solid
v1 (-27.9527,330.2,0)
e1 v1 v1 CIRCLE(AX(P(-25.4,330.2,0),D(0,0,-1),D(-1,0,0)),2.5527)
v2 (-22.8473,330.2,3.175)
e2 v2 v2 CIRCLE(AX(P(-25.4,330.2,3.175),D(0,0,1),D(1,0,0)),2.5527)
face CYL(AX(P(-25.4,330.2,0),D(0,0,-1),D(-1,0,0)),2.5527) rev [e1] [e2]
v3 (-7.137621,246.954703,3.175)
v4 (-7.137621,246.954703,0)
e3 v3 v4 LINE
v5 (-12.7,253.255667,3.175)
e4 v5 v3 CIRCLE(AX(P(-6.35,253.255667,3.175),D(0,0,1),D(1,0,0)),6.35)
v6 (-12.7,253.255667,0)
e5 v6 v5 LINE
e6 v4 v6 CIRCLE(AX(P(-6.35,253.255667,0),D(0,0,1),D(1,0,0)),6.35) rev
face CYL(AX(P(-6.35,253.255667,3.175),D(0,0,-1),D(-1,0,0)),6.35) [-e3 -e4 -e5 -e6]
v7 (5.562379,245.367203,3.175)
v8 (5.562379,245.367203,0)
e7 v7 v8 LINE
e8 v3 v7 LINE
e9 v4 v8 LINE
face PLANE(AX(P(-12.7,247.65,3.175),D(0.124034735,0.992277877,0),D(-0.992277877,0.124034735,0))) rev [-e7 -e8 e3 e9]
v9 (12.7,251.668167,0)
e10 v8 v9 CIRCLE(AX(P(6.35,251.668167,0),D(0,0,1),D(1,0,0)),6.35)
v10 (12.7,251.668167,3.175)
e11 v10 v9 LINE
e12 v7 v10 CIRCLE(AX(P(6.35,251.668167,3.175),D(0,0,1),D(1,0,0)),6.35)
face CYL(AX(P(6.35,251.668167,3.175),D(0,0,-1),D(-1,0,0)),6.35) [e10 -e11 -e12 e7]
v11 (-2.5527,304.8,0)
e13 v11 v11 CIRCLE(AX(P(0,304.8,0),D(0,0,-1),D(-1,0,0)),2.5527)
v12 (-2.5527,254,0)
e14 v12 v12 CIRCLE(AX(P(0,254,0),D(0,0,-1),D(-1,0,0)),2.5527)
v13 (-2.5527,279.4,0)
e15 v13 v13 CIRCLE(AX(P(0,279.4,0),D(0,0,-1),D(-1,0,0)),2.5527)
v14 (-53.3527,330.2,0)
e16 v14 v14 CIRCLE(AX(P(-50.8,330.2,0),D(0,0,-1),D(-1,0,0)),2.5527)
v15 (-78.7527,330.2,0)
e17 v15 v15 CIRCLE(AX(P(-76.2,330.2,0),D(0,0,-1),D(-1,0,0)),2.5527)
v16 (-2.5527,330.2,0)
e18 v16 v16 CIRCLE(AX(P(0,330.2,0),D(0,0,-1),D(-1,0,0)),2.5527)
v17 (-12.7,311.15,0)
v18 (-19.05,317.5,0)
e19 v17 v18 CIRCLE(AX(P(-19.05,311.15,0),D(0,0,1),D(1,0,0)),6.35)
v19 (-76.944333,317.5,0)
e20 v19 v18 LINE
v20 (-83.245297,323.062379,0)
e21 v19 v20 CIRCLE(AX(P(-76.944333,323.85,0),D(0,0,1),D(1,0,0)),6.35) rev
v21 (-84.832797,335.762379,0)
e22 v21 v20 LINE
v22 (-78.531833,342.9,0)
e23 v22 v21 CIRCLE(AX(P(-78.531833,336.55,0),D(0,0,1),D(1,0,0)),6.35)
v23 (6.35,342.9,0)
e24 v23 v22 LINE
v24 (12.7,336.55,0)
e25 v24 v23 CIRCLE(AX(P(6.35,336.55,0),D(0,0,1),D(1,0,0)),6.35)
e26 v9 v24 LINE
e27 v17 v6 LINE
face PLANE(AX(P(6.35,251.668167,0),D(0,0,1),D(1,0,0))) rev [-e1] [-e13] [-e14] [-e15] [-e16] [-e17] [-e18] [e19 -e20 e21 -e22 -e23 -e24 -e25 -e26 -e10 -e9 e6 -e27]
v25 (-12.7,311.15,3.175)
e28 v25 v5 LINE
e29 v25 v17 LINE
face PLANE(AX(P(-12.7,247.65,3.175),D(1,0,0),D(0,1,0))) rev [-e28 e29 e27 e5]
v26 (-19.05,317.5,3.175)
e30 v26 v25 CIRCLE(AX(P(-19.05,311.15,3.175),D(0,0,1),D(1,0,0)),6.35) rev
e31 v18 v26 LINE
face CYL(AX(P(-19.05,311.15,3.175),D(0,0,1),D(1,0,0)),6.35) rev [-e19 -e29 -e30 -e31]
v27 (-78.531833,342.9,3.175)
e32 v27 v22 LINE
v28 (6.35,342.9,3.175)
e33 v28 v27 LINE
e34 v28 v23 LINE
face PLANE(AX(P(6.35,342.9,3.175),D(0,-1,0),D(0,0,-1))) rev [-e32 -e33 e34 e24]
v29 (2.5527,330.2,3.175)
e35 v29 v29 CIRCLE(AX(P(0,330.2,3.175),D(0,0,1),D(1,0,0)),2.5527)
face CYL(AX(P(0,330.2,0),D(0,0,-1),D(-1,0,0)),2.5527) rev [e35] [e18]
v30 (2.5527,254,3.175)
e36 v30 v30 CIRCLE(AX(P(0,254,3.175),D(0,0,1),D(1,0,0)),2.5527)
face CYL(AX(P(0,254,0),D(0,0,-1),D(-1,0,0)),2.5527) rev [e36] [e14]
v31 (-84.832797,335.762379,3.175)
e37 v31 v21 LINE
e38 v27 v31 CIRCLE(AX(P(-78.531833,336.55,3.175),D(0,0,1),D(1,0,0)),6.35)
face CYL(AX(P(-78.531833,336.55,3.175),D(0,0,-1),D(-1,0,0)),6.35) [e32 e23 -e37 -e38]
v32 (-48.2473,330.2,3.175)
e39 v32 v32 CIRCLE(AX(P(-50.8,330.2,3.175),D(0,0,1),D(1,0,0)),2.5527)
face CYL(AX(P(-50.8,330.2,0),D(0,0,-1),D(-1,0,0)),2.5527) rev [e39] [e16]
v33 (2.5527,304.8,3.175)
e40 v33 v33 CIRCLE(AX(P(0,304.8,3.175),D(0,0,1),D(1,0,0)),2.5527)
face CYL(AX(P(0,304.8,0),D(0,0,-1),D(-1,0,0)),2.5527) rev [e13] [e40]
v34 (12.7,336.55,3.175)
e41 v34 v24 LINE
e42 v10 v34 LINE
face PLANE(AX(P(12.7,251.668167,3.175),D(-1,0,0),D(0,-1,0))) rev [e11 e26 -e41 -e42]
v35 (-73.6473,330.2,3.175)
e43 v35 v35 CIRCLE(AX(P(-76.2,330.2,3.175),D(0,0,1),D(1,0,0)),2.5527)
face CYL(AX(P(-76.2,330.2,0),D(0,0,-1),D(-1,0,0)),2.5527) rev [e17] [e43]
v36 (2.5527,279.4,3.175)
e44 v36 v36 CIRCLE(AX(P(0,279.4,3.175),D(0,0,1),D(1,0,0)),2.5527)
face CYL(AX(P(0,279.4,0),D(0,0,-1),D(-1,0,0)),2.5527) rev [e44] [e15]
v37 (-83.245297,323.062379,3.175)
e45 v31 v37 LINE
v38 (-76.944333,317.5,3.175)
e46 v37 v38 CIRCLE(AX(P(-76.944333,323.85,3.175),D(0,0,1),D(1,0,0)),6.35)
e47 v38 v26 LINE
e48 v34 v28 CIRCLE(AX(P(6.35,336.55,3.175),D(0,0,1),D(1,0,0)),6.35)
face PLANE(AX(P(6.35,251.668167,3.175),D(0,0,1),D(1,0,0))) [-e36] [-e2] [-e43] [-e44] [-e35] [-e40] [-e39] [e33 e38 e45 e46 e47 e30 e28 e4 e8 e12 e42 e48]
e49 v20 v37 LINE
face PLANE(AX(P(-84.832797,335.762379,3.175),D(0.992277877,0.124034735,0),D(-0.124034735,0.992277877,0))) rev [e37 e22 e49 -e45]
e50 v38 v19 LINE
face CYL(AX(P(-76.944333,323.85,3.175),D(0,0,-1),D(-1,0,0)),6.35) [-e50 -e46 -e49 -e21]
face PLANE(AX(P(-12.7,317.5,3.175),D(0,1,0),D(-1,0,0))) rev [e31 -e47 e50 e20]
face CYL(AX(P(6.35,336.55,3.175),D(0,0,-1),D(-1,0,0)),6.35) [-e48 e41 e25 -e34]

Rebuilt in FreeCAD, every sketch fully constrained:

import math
import FreeCAD as App
import Part
import Sketcher
Q = App.Units.Quantity


def edges_at(feature, points):
    """Names of the edges that pass closest to the given points."""
    edges = feature.Shape.Edges
    near = lambda p: min(range(len(edges)), key=lambda i: edges[i].distToShape(Part.Vertex(*p))[0])
    return sorted({f"Edge{near(p) + 1}" for p in points})

doc = App.newDocument("Part")
body = doc.addObject("PartDesign::Body", "Body")

sketch1 = body.newObject("Sketcher::SketchObject", "Sketch")
sketch1.AttachmentSupport = (doc.getObject("XY_Plane"), [""])
sketch1.MapMode = "FlatFace"
sketch1.addGeometry([
    Part.LineSegment(App.Vector(-12.7, 317.5, 0), App.Vector(-12.7, 247.65, 0)),
    Part.LineSegment(App.Vector(-12.7, 247.65, 0), App.Vector(5.562379, 245.367203, 0)),
    Part.ArcOfCircle(Part.Circle(App.Vector(6.35, 251.668167, 0), App.Vector(0, 0, 1), 6.35), math.radians(-97.125016), math.radians(0)),
    Part.LineSegment(App.Vector(12.7, 251.668167, 0), App.Vector(12.7, 336.55, 0)),
    Part.ArcOfCircle(Part.Circle(App.Vector(6.35, 336.55, 0), App.Vector(0, 0, 1), 6.35), math.radians(0), math.radians(90)),
    Part.LineSegment(App.Vector(6.35, 342.9, 0), App.Vector(-78.531833, 342.9, 0)),
    Part.ArcOfCircle(Part.Circle(App.Vector(-78.531833, 336.55, 0), App.Vector(0, 0, 1), 6.35), math.radians(90), math.radians(187.125016)),
    Part.LineSegment(App.Vector(-84.832797, 335.762379, 0), App.Vector(-82.55, 317.5, 0)),
    Part.LineSegment(App.Vector(-82.55, 317.5, 0), App.Vector(-12.7, 317.5, 0)),
], False)
sketch1.addConstraint([
    Sketcher.Constraint("Coincident", 0, 2, 1, 1),
    Sketcher.Constraint("Tangent", 1, 2, 2, 1),
    Sketcher.Constraint("Tangent", 2, 2, 3, 1),
    Sketcher.Constraint("Tangent", 3, 2, 4, 1),
    Sketcher.Constraint("Tangent", 4, 2, 5, 1),
    Sketcher.Constraint("Tangent", 5, 2, 6, 1),
    Sketcher.Constraint("Tangent", 6, 2, 7, 1),
    Sketcher.Constraint("Coincident", 7, 2, 8, 1),
    Sketcher.Constraint("Coincident", 8, 2, 0, 1),
    Sketcher.Constraint("Vertical", 0),
    Sketcher.Constraint("Vertical", 3),
    Sketcher.Constraint("Horizontal", 5),
    Sketcher.Constraint("Horizontal", 8),
    Sketcher.Constraint("Equal", 2, 4),
    Sketcher.Constraint("Equal", 4, 6),
    Sketcher.Constraint("Equal", 8, 0),
    Sketcher.Constraint("Equal", 5, 3),
    Sketcher.Constraint("Equal", 1, 7),
    Sketcher.Constraint("Radius", 2, Q("0.25 in")),
    Sketcher.Constraint("DistanceX", 0, 2, 2, 2, Q("1 in")),
    Sketcher.Constraint("DistanceX", 8, 1, 8, 2, Q("2.75 in")),
    Sketcher.Constraint("DistanceX", 0, 2, -1, 1, Q("0.5 in")),
    Sketcher.Constraint("DistanceY", -1, 1, 4, 2, Q("13.5 in")),
    Sketcher.Constraint("Distance", 1, Q("18.404501 mm")),
])
pad1 = body.newObject("PartDesign::Pad", "Pad")
pad1.Profile = sketch1
pad1.Length = Q("0.125 in")
doc.recompute()

fillet = body.newObject("PartDesign::Fillet", "Fillet")
fillet.Base = (pad1, edges_at(pad1, [(-12.7, 247.65, 1.587), (-12.7, 317.5, 1.587), (-82.55, 317.5, 1.587)]))
fillet.Radius = Q("0.25 in")

sketch2 = body.newObject("Sketcher::SketchObject", "Sketch001")
sketch2.AttachmentSupport = (doc.getObject("XY_Plane"), [""])
sketch2.MapMode = "FlatFace"
sketch2.addGeometry([
    Part.Circle(App.Vector(0, 330.2, 0), App.Vector(0, 0, 1), 2.5527),
    Part.Circle(App.Vector(0, 304.8, 0), App.Vector(0, 0, 1), 2.5527),
    Part.Circle(App.Vector(0, 279.4, 0), App.Vector(0, 0, 1), 2.5527),
    Part.Circle(App.Vector(-25.4, 330.2, 0), App.Vector(0, 0, 1), 2.5527),
    Part.Circle(App.Vector(0, 254, 0), App.Vector(0, 0, 1), 2.5527),
    Part.Circle(App.Vector(-50.8, 330.2, 0), App.Vector(0, 0, 1), 2.5527),
    Part.Circle(App.Vector(-76.2, 330.2, 0), App.Vector(0, 0, 1), 2.5527),
], False)
sketch2.addConstraint([
    Sketcher.Constraint("Equal", 0, 1),
    Sketcher.Constraint("Equal", 1, 2),
    Sketcher.Constraint("Equal", 2, 3),
    Sketcher.Constraint("Equal", 3, 4),
    Sketcher.Constraint("Equal", 4, 5),
    Sketcher.Constraint("Equal", 5, 6),
    Sketcher.Constraint("PointOnObject", 0, 3, -2),
    Sketcher.Constraint("PointOnObject", 1, 3, -2),
    Sketcher.Constraint("PointOnObject", 2, 3, -2),
    Sketcher.Constraint("PointOnObject", 4, 3, -2),
    Sketcher.Constraint("Horizontal", 0, 3, 3, 3),
    Sketcher.Constraint("Horizontal", 3, 3, 5, 3),
    Sketcher.Constraint("Horizontal", 5, 3, 6, 3),
    Sketcher.Constraint("Diameter", 0, Q("0.201 in")),
    Sketcher.Constraint("DistanceY", -1, 1, 0, 3, Q("13 in")),
    Sketcher.Constraint("DistanceY", -1, 1, 1, 3, Q("12 in")),
    Sketcher.Constraint("DistanceY", -1, 1, 2, 3, Q("11 in")),
    Sketcher.Constraint("DistanceX", 3, 3, -1, 1, Q("1 in")),
    Sketcher.Constraint("DistanceY", -1, 1, 4, 3, Q("10 in")),
    Sketcher.Constraint("DistanceX", 5, 3, -1, 1, Q("2 in")),
    Sketcher.Constraint("DistanceX", 6, 3, -1, 1, Q("3 in")),
])
doc.recompute()
hole = body.newObject("PartDesign::Hole", "Hole")
hole.Profile = sketch2
hole.ThreadType = "None"
hole.Diameter = Q("0.201 in")
hole.DepthType = "Dimension"
hole.Depth = Q("0.39 in")
hole.DrillPoint = "Angled"
hole.DrillPointAngle = 118
hole.Reversed = True

doc.recompute()
